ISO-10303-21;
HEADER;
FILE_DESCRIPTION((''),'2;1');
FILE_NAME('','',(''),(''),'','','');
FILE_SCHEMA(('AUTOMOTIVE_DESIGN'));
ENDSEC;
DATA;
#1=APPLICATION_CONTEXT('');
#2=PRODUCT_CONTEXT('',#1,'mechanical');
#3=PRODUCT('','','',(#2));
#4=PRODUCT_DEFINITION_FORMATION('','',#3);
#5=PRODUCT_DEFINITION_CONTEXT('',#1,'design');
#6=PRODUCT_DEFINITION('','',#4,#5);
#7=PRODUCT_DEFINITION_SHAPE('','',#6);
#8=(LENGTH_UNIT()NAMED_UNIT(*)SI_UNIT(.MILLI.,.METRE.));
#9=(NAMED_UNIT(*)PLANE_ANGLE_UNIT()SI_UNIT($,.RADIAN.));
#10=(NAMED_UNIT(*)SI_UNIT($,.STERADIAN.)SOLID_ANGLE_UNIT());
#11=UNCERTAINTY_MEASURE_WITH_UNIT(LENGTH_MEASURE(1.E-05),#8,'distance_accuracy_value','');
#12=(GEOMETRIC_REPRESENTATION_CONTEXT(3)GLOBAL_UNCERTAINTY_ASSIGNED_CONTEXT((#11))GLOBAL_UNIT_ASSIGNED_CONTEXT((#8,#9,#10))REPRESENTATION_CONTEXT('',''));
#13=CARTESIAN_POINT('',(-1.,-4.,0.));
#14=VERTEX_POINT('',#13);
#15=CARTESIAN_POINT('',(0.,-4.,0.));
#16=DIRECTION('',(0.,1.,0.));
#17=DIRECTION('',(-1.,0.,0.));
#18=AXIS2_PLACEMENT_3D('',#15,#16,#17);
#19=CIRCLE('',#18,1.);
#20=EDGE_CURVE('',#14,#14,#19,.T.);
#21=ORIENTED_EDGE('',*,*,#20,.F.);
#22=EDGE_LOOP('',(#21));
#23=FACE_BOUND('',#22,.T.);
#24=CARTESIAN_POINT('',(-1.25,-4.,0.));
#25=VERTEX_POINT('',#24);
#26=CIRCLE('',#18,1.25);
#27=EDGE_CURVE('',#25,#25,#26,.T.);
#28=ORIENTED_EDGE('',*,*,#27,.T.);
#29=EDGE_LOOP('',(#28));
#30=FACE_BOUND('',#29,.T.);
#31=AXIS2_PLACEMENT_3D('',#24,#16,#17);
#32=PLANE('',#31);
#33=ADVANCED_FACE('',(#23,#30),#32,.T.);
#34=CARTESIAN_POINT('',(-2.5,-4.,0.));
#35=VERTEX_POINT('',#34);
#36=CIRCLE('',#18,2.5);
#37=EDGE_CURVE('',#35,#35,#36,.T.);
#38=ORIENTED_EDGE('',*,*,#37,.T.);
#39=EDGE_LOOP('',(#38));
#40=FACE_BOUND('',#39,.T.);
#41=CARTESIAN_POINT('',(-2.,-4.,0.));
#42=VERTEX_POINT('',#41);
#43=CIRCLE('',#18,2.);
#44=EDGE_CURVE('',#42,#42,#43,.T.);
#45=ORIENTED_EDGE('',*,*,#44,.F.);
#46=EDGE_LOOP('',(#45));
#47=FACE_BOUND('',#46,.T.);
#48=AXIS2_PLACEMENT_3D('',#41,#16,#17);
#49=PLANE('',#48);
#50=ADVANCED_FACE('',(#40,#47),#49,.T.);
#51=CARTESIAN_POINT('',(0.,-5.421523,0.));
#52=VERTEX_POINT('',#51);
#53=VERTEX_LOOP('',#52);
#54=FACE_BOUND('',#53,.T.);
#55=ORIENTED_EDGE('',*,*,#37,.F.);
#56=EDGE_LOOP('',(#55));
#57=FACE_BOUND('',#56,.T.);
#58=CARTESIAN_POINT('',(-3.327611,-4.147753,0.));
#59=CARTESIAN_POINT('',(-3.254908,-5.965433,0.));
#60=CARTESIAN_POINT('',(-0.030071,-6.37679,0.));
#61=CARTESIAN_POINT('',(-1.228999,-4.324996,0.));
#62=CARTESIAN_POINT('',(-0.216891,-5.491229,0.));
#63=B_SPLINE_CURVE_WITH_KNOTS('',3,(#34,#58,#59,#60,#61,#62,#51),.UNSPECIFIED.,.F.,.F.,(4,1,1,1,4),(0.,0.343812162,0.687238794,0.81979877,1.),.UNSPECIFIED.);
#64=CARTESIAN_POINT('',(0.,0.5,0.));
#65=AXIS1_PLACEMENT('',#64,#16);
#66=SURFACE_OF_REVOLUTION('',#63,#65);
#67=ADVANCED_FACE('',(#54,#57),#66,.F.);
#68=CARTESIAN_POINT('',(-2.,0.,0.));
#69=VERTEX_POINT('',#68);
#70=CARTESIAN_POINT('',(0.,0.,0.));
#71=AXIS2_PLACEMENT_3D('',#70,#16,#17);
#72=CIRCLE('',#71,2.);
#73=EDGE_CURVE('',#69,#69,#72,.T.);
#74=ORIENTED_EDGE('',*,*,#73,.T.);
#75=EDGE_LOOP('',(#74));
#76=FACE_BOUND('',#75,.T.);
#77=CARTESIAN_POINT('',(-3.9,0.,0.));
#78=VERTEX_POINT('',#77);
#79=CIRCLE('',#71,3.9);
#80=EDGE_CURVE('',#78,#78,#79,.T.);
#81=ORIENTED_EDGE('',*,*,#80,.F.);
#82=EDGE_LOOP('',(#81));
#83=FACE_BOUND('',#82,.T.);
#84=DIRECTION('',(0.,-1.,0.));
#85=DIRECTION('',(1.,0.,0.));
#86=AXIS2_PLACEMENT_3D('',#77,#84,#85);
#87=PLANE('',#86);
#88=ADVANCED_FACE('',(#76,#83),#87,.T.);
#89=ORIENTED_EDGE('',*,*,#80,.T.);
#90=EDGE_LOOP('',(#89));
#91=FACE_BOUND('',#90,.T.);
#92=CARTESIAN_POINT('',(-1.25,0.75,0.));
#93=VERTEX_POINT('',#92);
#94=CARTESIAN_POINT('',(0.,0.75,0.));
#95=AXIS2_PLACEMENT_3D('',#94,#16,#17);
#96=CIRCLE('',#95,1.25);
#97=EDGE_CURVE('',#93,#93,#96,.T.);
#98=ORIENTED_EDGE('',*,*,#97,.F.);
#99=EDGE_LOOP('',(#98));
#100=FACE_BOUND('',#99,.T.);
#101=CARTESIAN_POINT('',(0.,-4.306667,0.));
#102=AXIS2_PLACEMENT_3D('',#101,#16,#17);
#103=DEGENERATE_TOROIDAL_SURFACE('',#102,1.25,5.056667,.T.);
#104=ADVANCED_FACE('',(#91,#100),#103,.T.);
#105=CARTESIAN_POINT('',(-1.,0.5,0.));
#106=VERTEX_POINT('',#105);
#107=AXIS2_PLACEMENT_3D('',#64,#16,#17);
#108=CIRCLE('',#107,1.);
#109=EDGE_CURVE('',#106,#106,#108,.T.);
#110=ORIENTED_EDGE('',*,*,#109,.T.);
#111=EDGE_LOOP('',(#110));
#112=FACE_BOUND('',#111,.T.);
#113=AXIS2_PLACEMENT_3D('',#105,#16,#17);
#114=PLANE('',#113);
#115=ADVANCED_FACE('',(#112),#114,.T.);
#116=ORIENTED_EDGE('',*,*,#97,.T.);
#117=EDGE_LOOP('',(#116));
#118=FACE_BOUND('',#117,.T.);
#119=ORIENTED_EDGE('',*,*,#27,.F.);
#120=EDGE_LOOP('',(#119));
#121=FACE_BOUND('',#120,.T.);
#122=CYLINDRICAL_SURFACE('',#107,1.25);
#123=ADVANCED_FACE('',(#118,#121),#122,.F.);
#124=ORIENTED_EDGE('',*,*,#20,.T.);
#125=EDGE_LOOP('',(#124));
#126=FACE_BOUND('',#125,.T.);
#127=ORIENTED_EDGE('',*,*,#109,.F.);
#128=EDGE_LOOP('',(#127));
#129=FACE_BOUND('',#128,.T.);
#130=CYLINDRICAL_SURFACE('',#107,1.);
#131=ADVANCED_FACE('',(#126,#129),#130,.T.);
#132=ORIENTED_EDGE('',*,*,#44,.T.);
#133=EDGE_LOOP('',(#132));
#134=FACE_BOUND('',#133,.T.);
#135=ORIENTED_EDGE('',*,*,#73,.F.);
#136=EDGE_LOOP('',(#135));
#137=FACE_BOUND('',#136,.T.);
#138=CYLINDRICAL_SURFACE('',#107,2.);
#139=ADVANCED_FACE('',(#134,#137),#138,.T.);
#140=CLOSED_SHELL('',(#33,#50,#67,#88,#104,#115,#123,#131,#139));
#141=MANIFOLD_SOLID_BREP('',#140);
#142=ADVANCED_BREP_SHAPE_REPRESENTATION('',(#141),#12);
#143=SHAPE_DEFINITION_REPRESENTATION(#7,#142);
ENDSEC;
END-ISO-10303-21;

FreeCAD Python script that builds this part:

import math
import FreeCAD as App
import Part
import Sketcher
Q = App.Units.Quantity

doc = App.newDocument("Part")
params = doc.addObject("Spreadsheet::Sheet", "Params")
for row, (alias, value) in enumerate([
    ("sketch1_width", "1 mm"),
    ("sketch1_width2", "1.9 mm"),
    ("sketch1_width3", "0.5 mm"),
    ("sketch1_height", "4.5 mm"),
    ("sketch1_width4", "0.25 mm"),
    ("revolution_angle", "360 deg"),
], start=1):
    params.set(f"A{row}", alias)
    params.set(f"B{row}", "=" + value)
    params.setAlias(f"B{row}", alias)

body = doc.addObject("PartDesign::Body", "Body")

# Sketch on XY plane
sketch1 = doc.addObject("Sketcher::SketchObject", "Sketch")
body.addObject(sketch1)
sketch1.AttachmentSupport = (doc.XY_Plane, [""])
sketch1.MapMode = "FlatFace"
sketch1.addGeometry([
    Part.LineSegment(App.Vector(-3.9, 0, 0), App.Vector(-2, 0, 0)),  # 0
    Part.LineSegment(App.Vector(-2, 0, 0), App.Vector(-2, -4, 0)),  # 1
    Part.LineSegment(App.Vector(-2, -4, 0), App.Vector(-2.5, -4, 0)),  # 2
    Part.BSplineCurve([App.Vector(-2.5, -4, 0), App.Vector(-3.327611, -4.147753, 0), App.Vector(-3.254908, -5.965433, 0), App.Vector(-0.030071, -6.37679, 0), App.Vector(-1.228999, -4.324996, 0), App.Vector(-0.216891, -5.491229, 0), App.Vector(0, -5.421523, 0)], [4, 1, 1, 1, 4], [0, 0.343812162, 0.687238794, 0.81979877, 1], False, 3, [1, 1, 1, 1, 1, 1, 1], False),  # 3
    Part.LineSegment(App.Vector(0, -5.421523, 0), App.Vector(0, 0.5, 0)),  # 4
    Part.LineSegment(App.Vector(0, 0.5, 0), App.Vector(-1, 0.5, 0)),  # 5
    Part.LineSegment(App.Vector(-1, 0.5, 0), App.Vector(-1, -4, 0)),  # 6
    Part.LineSegment(App.Vector(-1, -4, 0), App.Vector(-1.25, -4, 0)),  # 7
    Part.LineSegment(App.Vector(-1.25, -4, 0), App.Vector(-1.25, 0.75, 0)),  # 8
    Part.ArcOfCircle(Part.Circle(App.Vector(-1.25, -4.306667, 0), App.Vector(0, 0, 1), 5.056667), math.radians(90), math.radians(121.605028)),  # 9
], False)
sketch1.addConstraint([
    Sketcher.Constraint("Block", 3),
    Sketcher.Constraint("Coincident", 0, 2, 1, 1),
    Sketcher.Constraint("Coincident", 1, 2, 2, 1),
    Sketcher.Constraint("Coincident", 2, 2, 3, 1),
    Sketcher.Constraint("Coincident", 3, 2, 4, 1),
    Sketcher.Constraint("Coincident", 4, 2, 5, 1),
    Sketcher.Constraint("Coincident", 5, 2, 6, 1),
    Sketcher.Constraint("Coincident", 6, 2, 7, 1),
    Sketcher.Constraint("Coincident", 7, 2, 8, 1),
    Sketcher.Constraint("Coincident", 8, 2, 9, 1),
    Sketcher.Constraint("Coincident", 9, 2, 0, 1),
    Sketcher.Constraint("Horizontal", 0),
    Sketcher.Constraint("Vertical", 1),
    Sketcher.Constraint("Horizontal", 2),
    Sketcher.Constraint("Vertical", 4),
    Sketcher.Constraint("Horizontal", 5),
    Sketcher.Constraint("Vertical", 6),
    Sketcher.Constraint("Horizontal", 7),
    Sketcher.Constraint("Vertical", 8),
    Sketcher.Constraint("PointOnObject", 0, 2, -1),
    Sketcher.Constraint("DistanceX", 5, 2, 5, 1, Q("1 mm")),
    Sketcher.Constraint("DistanceX", 0, 1, 0, 2, Q("1.9 mm")),
    Sketcher.Constraint("DistanceX", 2, 2, 2, 1, Q("0.5 mm")),
    Sketcher.Constraint("DistanceY", 6, 2, 6, 1, Q("4.5 mm")),
    Sketcher.Constraint("DistanceY", 6, 2, -1, 1, Q("4 mm")),
    Sketcher.Constraint("DistanceX", 7, 2, 7, 1, Q("0.25 mm")),
    Sketcher.Constraint("DistanceY", 8, 1, 8, 2, Q("4.75 mm")),
    Sketcher.Constraint("DistanceX", 9, 3, -1, 1, Q("1.25 mm")),
])
sketch1.setExpression("Constraints[20]", "Params.sketch1_width")
sketch1.setExpression("Constraints[21]", "Params.sketch1_width2")
sketch1.setExpression("Constraints[22]", "Params.sketch1_width3")
sketch1.setExpression("Constraints[23]", "Params.sketch1_height")
sketch1.setExpression("Constraints[25]", "Params.sketch1_width4")
revolution = doc.addObject("PartDesign::Revolution", "Revolution")
body.addObject(revolution)
revolution.Profile = sketch1
revolution.ReferenceAxis = (sketch1, ["V_Axis"])
revolution.setExpression("Angle", "Params.revolution_angle")

doc.recompute()
